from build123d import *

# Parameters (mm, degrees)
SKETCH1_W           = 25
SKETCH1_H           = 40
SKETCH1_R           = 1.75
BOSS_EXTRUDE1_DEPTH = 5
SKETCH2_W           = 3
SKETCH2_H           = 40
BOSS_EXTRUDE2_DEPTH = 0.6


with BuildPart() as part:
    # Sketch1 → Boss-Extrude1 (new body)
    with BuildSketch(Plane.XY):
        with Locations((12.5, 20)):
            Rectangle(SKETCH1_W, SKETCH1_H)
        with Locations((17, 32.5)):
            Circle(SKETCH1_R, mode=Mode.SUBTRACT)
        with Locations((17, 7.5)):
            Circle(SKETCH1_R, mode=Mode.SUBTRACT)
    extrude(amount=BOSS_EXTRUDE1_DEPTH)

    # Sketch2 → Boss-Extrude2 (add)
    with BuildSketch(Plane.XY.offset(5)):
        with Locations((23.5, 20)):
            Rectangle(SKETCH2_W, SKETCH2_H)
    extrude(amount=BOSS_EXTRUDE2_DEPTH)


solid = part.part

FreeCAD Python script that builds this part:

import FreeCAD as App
import Part
import Sketcher
from FreeCAD import Vector

doc = App.newDocument("Part")
body = doc.addObject("PartDesign::Body", "Body")

# Sketch on XY plane
sketch1 = body.newObject("Sketcher::SketchObject", "Sketch")
sketch1.AttachmentSupport = (doc.getObject("XY_Plane"), [""])
sketch1.MapMode = "FlatFace"
sketch1.addGeometry(Part.LineSegment(Vector(0, 40, 0), Vector(0, 0, 0)), False)
sketch1.addGeometry(Part.LineSegment(Vector(0, 0, 0), Vector(25, 0, 0)), False)
sketch1.addGeometry(Part.LineSegment(Vector(25, 0, 0), Vector(25, 40, 0)), False)
sketch1.addGeometry(Part.LineSegment(Vector(25, 40, 0), Vector(0, 40, 0)), False)
sketch1.addGeometry(Part.Circle(Vector(17, 7.5, 0), Vector(0, 0, 1), 1.8), False)
sketch1.addGeometry(Part.Circle(Vector(17, 32.5, 0), Vector(0, 0, 1), 1.8), False)
sketch1.addConstraint(Sketcher.Constraint("Coincident", 0, 2, 1, 1))
sketch1.addConstraint(Sketcher.Constraint("Coincident", 1, 2, 2, 1))
sketch1.addConstraint(Sketcher.Constraint("Coincident", 2, 2, 3, 1))
sketch1.addConstraint(Sketcher.Constraint("Coincident", 3, 2, 0, 1))
sketch1.addConstraint(Sketcher.Constraint("Vertical", 0))
sketch1.addConstraint(Sketcher.Constraint("Horizontal", 1))
sketch1.addConstraint(Sketcher.Constraint("Vertical", 2))
sketch1.addConstraint(Sketcher.Constraint("Horizontal", 3))
sketch1.addConstraint(Sketcher.Constraint("Coincident", 0, 2, -1, 1))
sketch1.addConstraint(Sketcher.Constraint("Equal", 4, 5))
sketch1.addConstraint(Sketcher.Constraint("Vertical", 4, 3, 5, 3))
sketch1.addConstraint(Sketcher.Constraint("Diameter", 4, 3.5))
sketch1.addConstraint(Sketcher.Constraint("DistanceX", 1, 1, 1, 2, 25.0))
sketch1.addConstraint(Sketcher.Constraint("DistanceY", 0, 2, 0, 1, 40.0))
sketch1.addConstraint(Sketcher.Constraint("DistanceX", -1, 1, 4, 3, 17.0))
sketch1.addConstraint(Sketcher.Constraint("DistanceY", 4, 3, 5, 3, 25.0))
sketch1.addConstraint(Sketcher.Constraint("DistanceY", -1, 1, 4, 3, 7.5))
pad1 = body.newObject("PartDesign::Pad", "Pad")
pad1.Profile = sketch1
pad1.Length = 5

# Sketch on XY plane
sketch2 = body.newObject("Sketcher::SketchObject", "Sketch001")
sketch2.AttachmentSupport = (doc.getObject("XY_Plane"), [""])
sketch2.MapMode = "FlatFace"
sketch2.AttachmentOffset = App.Placement(Vector(0, 0, 5), App.Rotation())
sketch2.addGeometry(Part.LineSegment(Vector(22, 40, 0), Vector(22, 0, 0)), False)
sketch2.addGeometry(Part.LineSegment(Vector(22, 0, 0), Vector(25, 0, 0)), False)
sketch2.addGeometry(Part.LineSegment(Vector(25, 0, 0), Vector(25, 40, 0)), False)
sketch2.addGeometry(Part.LineSegment(Vector(25, 40, 0), Vector(22, 40, 0)), False)
sketch2.addConstraint(Sketcher.Constraint("Coincident", 0, 2, 1, 1))
sketch2.addConstraint(Sketcher.Constraint("Coincident", 1, 2, 2, 1))
sketch2.addConstraint(Sketcher.Constraint("Coincident", 2, 2, 3, 1))
sketch2.addConstraint(Sketcher.Constraint("Coincident", 3, 2, 0, 1))
sketch2.addConstraint(Sketcher.Constraint("Vertical", 0))
sketch2.addConstraint(Sketcher.Constraint("Horizontal", 1))
sketch2.addConstraint(Sketcher.Constraint("Vertical", 2))
sketch2.addConstraint(Sketcher.Constraint("Horizontal", 3))
sketch2.addConstraint(Sketcher.Constraint("PointOnObject", 0, 2, -1))
sketch2.addConstraint(Sketcher.Constraint("DistanceX", 1, 1, 1, 2, 3.0))
sketch2.addConstraint(Sketcher.Constraint("DistanceY", 0, 2, 0, 1, 40.0))
sketch2.addConstraint(Sketcher.Constraint("DistanceX", -1, 1, 0, 2, 22.0))
pad2 = body.newObject("PartDesign::Pad", "Pad001")
pad2.Profile = sketch2
pad2.Length = 0.6

doc.recompute()
